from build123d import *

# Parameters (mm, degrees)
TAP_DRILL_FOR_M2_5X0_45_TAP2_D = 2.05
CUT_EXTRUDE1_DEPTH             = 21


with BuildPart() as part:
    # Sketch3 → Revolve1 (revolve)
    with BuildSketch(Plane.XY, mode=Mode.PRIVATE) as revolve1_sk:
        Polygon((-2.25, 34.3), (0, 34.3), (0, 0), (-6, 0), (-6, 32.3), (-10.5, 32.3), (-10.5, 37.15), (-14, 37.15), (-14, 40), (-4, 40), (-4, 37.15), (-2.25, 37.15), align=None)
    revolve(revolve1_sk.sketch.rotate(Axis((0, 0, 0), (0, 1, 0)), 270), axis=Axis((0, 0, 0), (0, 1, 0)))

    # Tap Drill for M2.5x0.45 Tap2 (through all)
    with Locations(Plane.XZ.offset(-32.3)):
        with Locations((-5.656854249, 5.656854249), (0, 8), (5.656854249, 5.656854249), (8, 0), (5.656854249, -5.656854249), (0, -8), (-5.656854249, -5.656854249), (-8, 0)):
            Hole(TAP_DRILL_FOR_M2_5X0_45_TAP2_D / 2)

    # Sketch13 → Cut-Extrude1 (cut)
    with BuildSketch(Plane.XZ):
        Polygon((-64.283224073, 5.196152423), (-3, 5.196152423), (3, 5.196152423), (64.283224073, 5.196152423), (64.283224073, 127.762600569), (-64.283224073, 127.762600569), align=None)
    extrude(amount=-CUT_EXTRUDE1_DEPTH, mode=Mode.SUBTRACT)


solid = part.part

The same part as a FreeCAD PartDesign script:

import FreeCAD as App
import Part
import Sketcher

V = App.Vector

doc = App.newDocument("Part")
params = doc.addObject("Spreadsheet::Sheet", "Params")
for row, (alias, value) in enumerate([
    ("sketch1_width", "10 mm"),
    ("sketch1_width2", "6 mm"),
    ("sketch1_width3", "3.5 mm"),
    ("sketch1_width4", "4.5 mm"),
    ("sketch1_height", "32.3 mm"),
    ("revolution_angle", "360 deg"),
    ("sketch2_diameter", "2.05 mm"),
    ("hole_diameter", "2.05 mm"),
    ("pocket1_length", "21 mm"),
], start=1):
    params.set(f"A{row}", alias)
    params.set(f"B{row}", "=" + value)
    params.setAlias(f"B{row}", alias)

body = doc.addObject("PartDesign::Body", "Body")

# Sketch on XY plane
sketch1 = body.newObject("Sketcher::SketchObject", "Sketch")
sketch1.AttachmentSupport = (doc.getObject("XY_Plane"), [""])
sketch1.MapMode = "FlatFace"
sketch1.addGeometry([
    Part.LineSegment(V(0, 34.3, 0), V(-2.2, 34.3, 0)),  # 0
    Part.LineSegment(V(-2.2, 34.3, 0), V(-2.2, 37.1, 0)),  # 1
    Part.LineSegment(V(-2.2, 37.1, 0), V(-4, 37.1, 0)),  # 2
    Part.LineSegment(V(-4, 37.1, 0), V(-4, 40, 0)),  # 3
    Part.LineSegment(V(-4, 40, 0), V(-14, 40, 0)),  # 4
    Part.LineSegment(V(-14, 40, 0), V(-14, 37.1, 0)),  # 5
    Part.LineSegment(V(-14, 37.1, 0), V(-10.5, 37.1, 0)),  # 6
    Part.LineSegment(V(-10.5, 37.1, 0), V(-10.5, 32.3, 0)),  # 7
    Part.LineSegment(V(-10.5, 32.3, 0), V(-6, 32.3, 0)),  # 8
    Part.LineSegment(V(-6, 32.3, 0), V(-6, 0, 0)),  # 9
    Part.LineSegment(V(-6, 0, 0), V(0, 0, 0)),  # 10
    Part.LineSegment(V(0, 0, 0), V(0, 34.3, 0)),  # 11
], False)
sketch1.addConstraint([
    Sketcher.Constraint("Coincident", 0, 2, 1, 1),
    Sketcher.Constraint("Coincident", 1, 2, 2, 1),
    Sketcher.Constraint("Coincident", 2, 2, 3, 1),
    Sketcher.Constraint("Coincident", 3, 2, 4, 1),
    Sketcher.Constraint("Coincident", 4, 2, 5, 1),
    Sketcher.Constraint("Coincident", 5, 2, 6, 1),
    Sketcher.Constraint("Coincident", 6, 2, 7, 1),
    Sketcher.Constraint("Coincident", 7, 2, 8, 1),
    Sketcher.Constraint("Coincident", 8, 2, 9, 1),
    Sketcher.Constraint("Coincident", 9, 2, 10, 1),
    Sketcher.Constraint("Coincident", 10, 2, 11, 1),
    Sketcher.Constraint("Coincident", 11, 2, 0, 1),
    Sketcher.Constraint("Horizontal", 0),
    Sketcher.Constraint("Vertical", 1),
    Sketcher.Constraint("Horizontal", 2),
    Sketcher.Constraint("Vertical", 3),
    Sketcher.Constraint("Horizontal", 4),
    Sketcher.Constraint("Vertical", 5),
    Sketcher.Constraint("Horizontal", 6),
    Sketcher.Constraint("Vertical", 7),
    Sketcher.Constraint("Horizontal", 8),
    Sketcher.Constraint("Vertical", 9),
    Sketcher.Constraint("Horizontal", 10),
    Sketcher.Constraint("Vertical", 11),
    Sketcher.Constraint("Coincident", 10, 2, -1, 1),
    Sketcher.Constraint("Horizontal", 2, 2, 5, 2),
    Sketcher.Constraint("Equal", 1, 3),
    Sketcher.Constraint("DistanceX", 4, 2, 4, 1, 10.0),
    Sketcher.Constraint("DistanceX", 10, 1, 10, 2, 6.0),
    Sketcher.Constraint("DistanceX", 6, 1, 6, 2, 3.5),
    Sketcher.Constraint("DistanceX", 8, 1, 8, 2, 4.5),
    Sketcher.Constraint("DistanceY", 9, 2, 9, 1, 32.3),
    Sketcher.Constraint("DistanceY", 11, 1, 11, 2, 34.3),
    Sketcher.Constraint("DistanceY", -1, 1, 3, 2, 40.0),
    Sketcher.Constraint("DistanceX", 0, 2, 0, 1, 2.25),
])
sketch1.setExpression("Constraints[27]", "Params.sketch1_width")
sketch1.setExpression("Constraints[28]", "Params.sketch1_width2")
sketch1.setExpression("Constraints[29]", "Params.sketch1_width3")
sketch1.setExpression("Constraints[30]", "Params.sketch1_width4")
sketch1.setExpression("Constraints[31]", "Params.sketch1_height")
revolution = body.newObject("PartDesign::Revolution", "Revolution")
revolution.Profile = sketch1
revolution.ReferenceAxis = (sketch1, ["V_Axis"])
revolution.setExpression("Angle", "Params.revolution_angle")

# Sketch on XZ plane
sketch2 = body.newObject("Sketcher::SketchObject", "Sketch001")
sketch2.AttachmentSupport = (doc.getObject("XZ_Plane"), [""])
sketch2.MapMode = "FlatFace"
sketch2.AttachmentOffset = App.Placement(V(0, 0, -32.3), App.Rotation())
sketch2.addGeometry([
    Part.Circle(V(-5.7, 5.7, 0), V(0, 0, 1), 1),  # 0
    Part.Circle(V(0, 8, 0), V(0, 0, 1), 1),  # 1
    Part.Circle(V(5.7, 5.7, 0), V(0, 0, 1), 1),  # 2
    Part.Circle(V(8, 0, 0), V(0, 0, 1), 1),  # 3
    Part.Circle(V(5.7, -5.7, 0), V(0, 0, 1), 1),  # 4
    Part.Circle(V(0, -8, 0), V(0, 0, 1), 1),  # 5
    Part.Circle(V(-5.7, -5.7, 0), V(0, 0, 1), 1),  # 6
    Part.Circle(V(-8, 0, 0), V(0, 0, 1), 1),  # 7
], False)
sketch2.addConstraint([
    Sketcher.Constraint("Equal", 0, 1),
    Sketcher.Constraint("Equal", 1, 2),
    Sketcher.Constraint("Equal", 2, 3),
    Sketcher.Constraint("Equal", 3, 4),
    Sketcher.Constraint("Equal", 4, 5),
    Sketcher.Constraint("Equal", 5, 6),
    Sketcher.Constraint("Equal", 6, 7),
    Sketcher.Constraint("Symmetric", 0, 3, 4, 3, -1, 1),
    Sketcher.Constraint("Symmetric", 1, 3, 5, 3, -1, 1),
    Sketcher.Constraint("Symmetric", 2, 3, 6, 3, -1, 1),
    Sketcher.Constraint("Symmetric", 3, 3, 7, 3, -1, 1),
    Sketcher.Constraint("Symmetric", 0, 3, 2, 3, -2),
    Sketcher.Constraint("PointOnObject", 1, 3, -2),
    Sketcher.Constraint("PointOnObject", 3, 3, -1),
    Sketcher.Constraint("Diameter", 0, 2.05),
    Sketcher.Constraint("DistanceY", -1, 1, 1, 3, 8.0),
    Sketcher.Constraint("DistanceX", -1, 1, 3, 3, 8.0),
    Sketcher.Constraint("DistanceX", 0, 3, 2, 3, 11.313708),
    Sketcher.Constraint("DistanceY", 4, 3, 2, 3, 11.313708),
])
sketch2.setExpression("Constraints[14]", "Params.sketch2_diameter")
doc.recompute()
hole = body.newObject("PartDesign::Hole", "Hole")
hole.Profile = sketch2
hole.ThreadType = "None"
hole.setExpression("Diameter", "Params.hole_diameter")
hole.DepthType = "ThroughAll"

# Sketch on XZ plane
sketch3 = body.newObject("Sketcher::SketchObject", "Sketch002")
sketch3.AttachmentSupport = (doc.getObject("XZ_Plane"), [""])
sketch3.MapMode = "FlatFace"
sketch3.addGeometry([
    Part.LineSegment(V(-64, 5, 0), V(64, 5, 0)),
    Part.LineSegment(V(64, 5, 0), V(64, 128, 0)),
    Part.LineSegment(V(64, 128, 0), V(-64, 128, 0)),
    Part.LineSegment(V(-64, 128, 0), V(-64, 5, 0)),
], False)
sketch3.addConstraint([
    Sketcher.Constraint("Coincident", 0, 2, 1, 1),
    Sketcher.Constraint("Coincident", 1, 2, 2, 1),
    Sketcher.Constraint("Coincident", 2, 2, 3, 1),
    Sketcher.Constraint("Coincident", 3, 2, 0, 1),
    Sketcher.Constraint("Horizontal", 0),
    Sketcher.Constraint("Vertical", 1),
    Sketcher.Constraint("Horizontal", 2),
    Sketcher.Constraint("Vertical", 3),
    Sketcher.Constraint("DistanceX", 0, 1, 0, 2, 128.566448),
    Sketcher.Constraint("DistanceY", 1, 1, 1, 2, 122.566448),
    Sketcher.Constraint("DistanceY", -1, 1, 1, 2, 127.762601),
    Sketcher.Constraint("DistanceX", -1, 1, 0, 2, 64.283224),
])
pocket1 = body.newObject("PartDesign::Pocket", "Pocket")
pocket1.Profile = sketch3
pocket1.setExpression("Length", "Params.pocket1_length")

doc.recompute()
